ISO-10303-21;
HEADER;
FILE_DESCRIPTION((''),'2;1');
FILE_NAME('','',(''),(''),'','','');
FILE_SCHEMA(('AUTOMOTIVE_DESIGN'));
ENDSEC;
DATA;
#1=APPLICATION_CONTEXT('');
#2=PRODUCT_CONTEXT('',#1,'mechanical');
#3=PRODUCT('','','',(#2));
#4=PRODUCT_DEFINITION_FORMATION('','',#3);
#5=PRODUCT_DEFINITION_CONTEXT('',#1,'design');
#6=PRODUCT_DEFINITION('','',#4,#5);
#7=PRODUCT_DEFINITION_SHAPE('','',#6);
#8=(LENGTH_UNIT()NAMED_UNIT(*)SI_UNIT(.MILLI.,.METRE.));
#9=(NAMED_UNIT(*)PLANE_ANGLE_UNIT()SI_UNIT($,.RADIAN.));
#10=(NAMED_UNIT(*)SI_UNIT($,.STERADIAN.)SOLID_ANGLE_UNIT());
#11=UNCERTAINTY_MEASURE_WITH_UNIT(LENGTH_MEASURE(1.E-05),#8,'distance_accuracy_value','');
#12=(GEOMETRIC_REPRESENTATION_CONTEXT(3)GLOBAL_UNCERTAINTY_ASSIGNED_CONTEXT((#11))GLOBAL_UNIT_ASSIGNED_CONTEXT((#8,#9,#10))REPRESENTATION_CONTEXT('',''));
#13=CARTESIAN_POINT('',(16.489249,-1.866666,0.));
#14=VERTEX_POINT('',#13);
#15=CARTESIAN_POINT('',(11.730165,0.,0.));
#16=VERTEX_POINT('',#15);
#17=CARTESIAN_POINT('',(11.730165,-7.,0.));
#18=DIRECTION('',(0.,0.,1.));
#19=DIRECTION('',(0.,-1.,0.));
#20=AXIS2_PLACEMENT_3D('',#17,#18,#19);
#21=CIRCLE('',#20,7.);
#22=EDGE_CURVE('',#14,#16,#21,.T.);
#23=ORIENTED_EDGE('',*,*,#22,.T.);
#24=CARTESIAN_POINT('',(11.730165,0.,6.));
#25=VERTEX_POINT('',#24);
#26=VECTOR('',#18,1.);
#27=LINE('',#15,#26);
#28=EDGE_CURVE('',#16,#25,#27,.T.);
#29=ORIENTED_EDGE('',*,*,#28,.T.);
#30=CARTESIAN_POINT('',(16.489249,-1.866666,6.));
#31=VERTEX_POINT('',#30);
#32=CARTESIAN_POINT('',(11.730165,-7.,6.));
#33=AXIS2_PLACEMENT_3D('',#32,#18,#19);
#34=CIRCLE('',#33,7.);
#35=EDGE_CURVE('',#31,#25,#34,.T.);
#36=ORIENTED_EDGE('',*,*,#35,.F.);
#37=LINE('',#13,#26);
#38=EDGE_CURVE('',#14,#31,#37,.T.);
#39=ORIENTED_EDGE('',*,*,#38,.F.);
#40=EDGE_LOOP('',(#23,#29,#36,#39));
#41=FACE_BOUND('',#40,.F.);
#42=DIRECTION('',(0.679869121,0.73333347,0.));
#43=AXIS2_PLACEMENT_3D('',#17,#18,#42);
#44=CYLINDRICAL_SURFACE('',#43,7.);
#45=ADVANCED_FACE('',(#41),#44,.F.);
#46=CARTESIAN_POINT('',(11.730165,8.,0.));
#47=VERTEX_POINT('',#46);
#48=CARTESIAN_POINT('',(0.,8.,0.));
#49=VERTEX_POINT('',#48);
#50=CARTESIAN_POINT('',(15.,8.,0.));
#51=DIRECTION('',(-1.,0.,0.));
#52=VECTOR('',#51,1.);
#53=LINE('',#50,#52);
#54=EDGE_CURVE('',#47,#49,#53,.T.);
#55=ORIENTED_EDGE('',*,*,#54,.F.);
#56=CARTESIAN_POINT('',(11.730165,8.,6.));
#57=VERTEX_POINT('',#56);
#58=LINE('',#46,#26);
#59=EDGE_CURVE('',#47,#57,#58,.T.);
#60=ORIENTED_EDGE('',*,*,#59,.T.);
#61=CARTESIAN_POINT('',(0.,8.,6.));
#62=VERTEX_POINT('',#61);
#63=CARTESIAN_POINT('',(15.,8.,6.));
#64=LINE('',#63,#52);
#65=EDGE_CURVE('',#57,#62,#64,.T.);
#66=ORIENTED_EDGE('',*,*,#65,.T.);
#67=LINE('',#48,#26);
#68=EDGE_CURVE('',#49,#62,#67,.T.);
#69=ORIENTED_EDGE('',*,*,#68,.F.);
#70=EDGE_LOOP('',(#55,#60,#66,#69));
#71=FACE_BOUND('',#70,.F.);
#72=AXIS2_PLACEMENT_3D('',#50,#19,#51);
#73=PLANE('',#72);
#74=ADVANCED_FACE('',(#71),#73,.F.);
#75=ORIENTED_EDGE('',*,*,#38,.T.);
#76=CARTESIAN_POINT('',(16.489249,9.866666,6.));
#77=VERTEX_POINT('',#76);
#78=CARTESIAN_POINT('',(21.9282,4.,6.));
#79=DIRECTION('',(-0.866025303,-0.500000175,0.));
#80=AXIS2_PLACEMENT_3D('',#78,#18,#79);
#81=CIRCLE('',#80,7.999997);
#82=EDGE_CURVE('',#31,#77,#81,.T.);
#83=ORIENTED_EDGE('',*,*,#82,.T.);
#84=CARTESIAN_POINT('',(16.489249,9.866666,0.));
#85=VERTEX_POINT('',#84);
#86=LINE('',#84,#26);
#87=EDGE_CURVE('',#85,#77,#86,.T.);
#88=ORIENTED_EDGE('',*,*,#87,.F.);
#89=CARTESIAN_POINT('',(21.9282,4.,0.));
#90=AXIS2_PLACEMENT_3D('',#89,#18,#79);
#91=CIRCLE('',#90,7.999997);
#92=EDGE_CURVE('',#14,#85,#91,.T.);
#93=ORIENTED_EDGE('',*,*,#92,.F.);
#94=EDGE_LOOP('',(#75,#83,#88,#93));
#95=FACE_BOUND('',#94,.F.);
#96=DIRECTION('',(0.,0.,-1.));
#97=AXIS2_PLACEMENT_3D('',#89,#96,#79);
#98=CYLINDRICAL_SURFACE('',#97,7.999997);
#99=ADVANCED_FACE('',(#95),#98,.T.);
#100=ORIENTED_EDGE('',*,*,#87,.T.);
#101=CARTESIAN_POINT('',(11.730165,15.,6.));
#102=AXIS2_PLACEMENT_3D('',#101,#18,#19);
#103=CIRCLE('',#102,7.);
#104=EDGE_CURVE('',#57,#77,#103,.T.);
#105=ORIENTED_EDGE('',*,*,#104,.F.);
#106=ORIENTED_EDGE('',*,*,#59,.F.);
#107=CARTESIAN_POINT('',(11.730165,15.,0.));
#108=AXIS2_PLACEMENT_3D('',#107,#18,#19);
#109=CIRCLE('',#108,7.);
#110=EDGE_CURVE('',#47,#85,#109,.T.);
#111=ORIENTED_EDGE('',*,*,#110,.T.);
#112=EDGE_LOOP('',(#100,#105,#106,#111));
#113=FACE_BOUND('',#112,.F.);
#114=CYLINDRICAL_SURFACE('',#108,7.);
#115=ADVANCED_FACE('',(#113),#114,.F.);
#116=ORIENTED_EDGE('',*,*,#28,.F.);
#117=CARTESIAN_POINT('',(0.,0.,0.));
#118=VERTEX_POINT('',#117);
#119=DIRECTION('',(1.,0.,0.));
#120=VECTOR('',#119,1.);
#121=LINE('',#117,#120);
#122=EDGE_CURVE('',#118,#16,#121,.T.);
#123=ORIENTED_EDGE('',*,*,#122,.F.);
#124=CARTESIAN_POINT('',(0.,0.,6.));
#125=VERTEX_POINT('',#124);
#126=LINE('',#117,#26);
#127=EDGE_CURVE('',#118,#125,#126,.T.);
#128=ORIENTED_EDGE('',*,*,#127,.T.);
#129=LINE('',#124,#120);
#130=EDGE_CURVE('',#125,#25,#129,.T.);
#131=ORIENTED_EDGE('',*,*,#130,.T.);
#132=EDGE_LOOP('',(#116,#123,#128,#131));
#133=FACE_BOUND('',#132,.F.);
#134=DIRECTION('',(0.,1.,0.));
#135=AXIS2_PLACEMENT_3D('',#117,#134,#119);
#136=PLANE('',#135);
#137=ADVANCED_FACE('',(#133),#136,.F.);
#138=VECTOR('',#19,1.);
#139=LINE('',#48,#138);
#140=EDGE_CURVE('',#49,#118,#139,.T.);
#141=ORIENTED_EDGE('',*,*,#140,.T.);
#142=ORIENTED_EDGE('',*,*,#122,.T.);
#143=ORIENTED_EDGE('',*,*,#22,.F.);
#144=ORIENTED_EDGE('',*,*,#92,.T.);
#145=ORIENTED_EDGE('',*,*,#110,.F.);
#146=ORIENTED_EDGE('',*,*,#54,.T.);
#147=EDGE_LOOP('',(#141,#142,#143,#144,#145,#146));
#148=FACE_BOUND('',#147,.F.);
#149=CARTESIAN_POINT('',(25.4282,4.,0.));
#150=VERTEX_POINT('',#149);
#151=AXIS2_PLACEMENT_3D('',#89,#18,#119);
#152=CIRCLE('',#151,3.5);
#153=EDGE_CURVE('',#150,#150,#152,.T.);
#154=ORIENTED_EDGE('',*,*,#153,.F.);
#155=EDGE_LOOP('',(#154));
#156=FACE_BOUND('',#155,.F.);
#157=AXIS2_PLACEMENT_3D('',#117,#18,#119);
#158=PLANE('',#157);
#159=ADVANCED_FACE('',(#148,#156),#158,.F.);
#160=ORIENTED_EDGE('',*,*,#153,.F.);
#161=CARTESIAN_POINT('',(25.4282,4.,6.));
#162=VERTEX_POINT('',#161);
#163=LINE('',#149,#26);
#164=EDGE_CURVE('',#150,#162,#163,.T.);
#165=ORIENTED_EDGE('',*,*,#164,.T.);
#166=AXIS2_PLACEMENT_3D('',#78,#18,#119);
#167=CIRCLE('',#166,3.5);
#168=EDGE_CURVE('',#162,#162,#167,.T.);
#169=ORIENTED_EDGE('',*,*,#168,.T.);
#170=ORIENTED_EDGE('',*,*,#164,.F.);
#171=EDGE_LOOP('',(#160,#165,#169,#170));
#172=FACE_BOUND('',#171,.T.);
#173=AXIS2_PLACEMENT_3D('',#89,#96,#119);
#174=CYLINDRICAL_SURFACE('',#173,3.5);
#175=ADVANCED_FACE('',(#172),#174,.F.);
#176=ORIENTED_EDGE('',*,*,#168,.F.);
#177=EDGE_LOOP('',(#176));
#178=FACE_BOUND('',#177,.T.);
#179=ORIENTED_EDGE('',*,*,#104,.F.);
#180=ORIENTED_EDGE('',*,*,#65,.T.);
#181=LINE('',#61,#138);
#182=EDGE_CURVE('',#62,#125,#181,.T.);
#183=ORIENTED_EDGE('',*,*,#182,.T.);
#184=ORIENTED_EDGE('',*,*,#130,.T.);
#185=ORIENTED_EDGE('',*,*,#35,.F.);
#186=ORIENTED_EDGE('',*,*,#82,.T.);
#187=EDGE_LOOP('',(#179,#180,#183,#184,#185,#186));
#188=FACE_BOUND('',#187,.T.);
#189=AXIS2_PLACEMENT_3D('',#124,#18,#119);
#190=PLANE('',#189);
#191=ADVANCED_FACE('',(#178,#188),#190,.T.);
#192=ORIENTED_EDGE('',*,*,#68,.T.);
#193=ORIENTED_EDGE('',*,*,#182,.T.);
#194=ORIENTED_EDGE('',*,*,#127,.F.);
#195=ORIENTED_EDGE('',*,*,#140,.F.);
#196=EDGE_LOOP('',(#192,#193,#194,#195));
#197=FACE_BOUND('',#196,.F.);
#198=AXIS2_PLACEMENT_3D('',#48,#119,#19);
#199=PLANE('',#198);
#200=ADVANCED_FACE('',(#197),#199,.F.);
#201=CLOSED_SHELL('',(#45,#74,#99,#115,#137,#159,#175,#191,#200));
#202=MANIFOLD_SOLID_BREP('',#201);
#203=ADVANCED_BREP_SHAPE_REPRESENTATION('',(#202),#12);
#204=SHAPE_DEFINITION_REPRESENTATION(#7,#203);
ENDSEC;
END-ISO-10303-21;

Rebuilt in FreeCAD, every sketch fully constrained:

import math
import FreeCAD as App
import Part
import Sketcher
from FreeCAD import Vector
Q = App.Units.Quantity


def edges_at(feature, points):
    """Names of the edges that pass closest to the given points."""
    edges = feature.Shape.Edges
    near = lambda p: min(range(len(edges)), key=lambda i: edges[i].distToShape(Part.Vertex(*p))[0])
    return sorted({f"Edge{near(p) + 1}" for p in points})

doc = App.newDocument("Part")
params = doc.addObject("Spreadsheet::Sheet", "Params")
for row, (alias, value) in enumerate([
    ("sketch1_diameter", "7 mm"),
    ("sketch1_radius", "8 mm"),
    ("sketch1_width", "15 mm"),
    ("sketch1_height", "8 mm"),
    ("pad1_length", "6 mm"),
    ("fillet_radius", "7 mm"),
], start=1):
    params.set(f"A{row}", alias)
    params.set(f"B{row}", "=" + value)
    params.setAlias(f"B{row}", alias)

body = doc.addObject("PartDesign::Body", "Body")

# Sketch on XY plane
sketch1 = body.newObject("Sketcher::SketchObject", "Sketch")
sketch1.AttachmentSupport = (doc.getObject("XY_Plane"), [""])
sketch1.MapMode = "FlatFace"
sketch1.addGeometry([
    Part.LineSegment(Vector(0, 8, 0), Vector(0, 0, 0)),  # 0
    Part.LineSegment(Vector(0, 0, 0), Vector(15, 0, 0)),  # 1
    Part.ArcOfCircle(Part.Circle(Vector(21.9, 4, 0), Vector(0, 0, 1), 8), math.radians(-150), math.radians(150)),  # 2
    Part.LineSegment(Vector(15, 8, 0), Vector(0, 8, 0)),  # 3
    Part.Circle(Vector(21.9, 4, 0), Vector(0, 0, 1), 3.5),  # 4
], False)
sketch1.addConstraint([
    Sketcher.Constraint("Coincident", 0, 2, 1, 1),
    Sketcher.Constraint("Coincident", 1, 2, 2, 1),
    Sketcher.Constraint("Coincident", 2, 2, 3, 1),
    Sketcher.Constraint("Coincident", 3, 2, 0, 1),
    Sketcher.Constraint("Vertical", 0),
    Sketcher.Constraint("Horizontal", 1),
    Sketcher.Constraint("Horizontal", 3),
    Sketcher.Constraint("Coincident", 0, 2, -1, 1),
    Sketcher.Constraint("Coincident", 4, 3, 2, 3),
    Sketcher.Constraint("Vertical", 1, 2, 2, 2),
    Sketcher.Constraint("Diameter", 4, Q("7 mm")),
    Sketcher.Constraint("Radius", 2, Q("8 mm")),
    Sketcher.Constraint("DistanceX", 1, 1, 1, 2, Q("15 mm")),
    Sketcher.Constraint("DistanceY", 0, 2, 0, 1, Q("8 mm")),
])
sketch1.setExpression("Constraints[10]", "Params.sketch1_diameter")
sketch1.setExpression("Constraints[11]", "Params.sketch1_radius")
sketch1.setExpression("Constraints[12]", "Params.sketch1_width")
sketch1.setExpression("Constraints[13]", "Params.sketch1_height")
pad1 = body.newObject("PartDesign::Pad", "Pad")
pad1.Profile = sketch1
pad1.setExpression("Length", "Params.pad1_length")
doc.recompute()

fillet = body.newObject("PartDesign::Fillet", "Fillet")
fillet.Base = (pad1, edges_at(pad1, [(15, 8, 3), (15, 0, 3)]))
fillet.setExpression("Radius", "Params.fillet_radius")

doc.recompute()
